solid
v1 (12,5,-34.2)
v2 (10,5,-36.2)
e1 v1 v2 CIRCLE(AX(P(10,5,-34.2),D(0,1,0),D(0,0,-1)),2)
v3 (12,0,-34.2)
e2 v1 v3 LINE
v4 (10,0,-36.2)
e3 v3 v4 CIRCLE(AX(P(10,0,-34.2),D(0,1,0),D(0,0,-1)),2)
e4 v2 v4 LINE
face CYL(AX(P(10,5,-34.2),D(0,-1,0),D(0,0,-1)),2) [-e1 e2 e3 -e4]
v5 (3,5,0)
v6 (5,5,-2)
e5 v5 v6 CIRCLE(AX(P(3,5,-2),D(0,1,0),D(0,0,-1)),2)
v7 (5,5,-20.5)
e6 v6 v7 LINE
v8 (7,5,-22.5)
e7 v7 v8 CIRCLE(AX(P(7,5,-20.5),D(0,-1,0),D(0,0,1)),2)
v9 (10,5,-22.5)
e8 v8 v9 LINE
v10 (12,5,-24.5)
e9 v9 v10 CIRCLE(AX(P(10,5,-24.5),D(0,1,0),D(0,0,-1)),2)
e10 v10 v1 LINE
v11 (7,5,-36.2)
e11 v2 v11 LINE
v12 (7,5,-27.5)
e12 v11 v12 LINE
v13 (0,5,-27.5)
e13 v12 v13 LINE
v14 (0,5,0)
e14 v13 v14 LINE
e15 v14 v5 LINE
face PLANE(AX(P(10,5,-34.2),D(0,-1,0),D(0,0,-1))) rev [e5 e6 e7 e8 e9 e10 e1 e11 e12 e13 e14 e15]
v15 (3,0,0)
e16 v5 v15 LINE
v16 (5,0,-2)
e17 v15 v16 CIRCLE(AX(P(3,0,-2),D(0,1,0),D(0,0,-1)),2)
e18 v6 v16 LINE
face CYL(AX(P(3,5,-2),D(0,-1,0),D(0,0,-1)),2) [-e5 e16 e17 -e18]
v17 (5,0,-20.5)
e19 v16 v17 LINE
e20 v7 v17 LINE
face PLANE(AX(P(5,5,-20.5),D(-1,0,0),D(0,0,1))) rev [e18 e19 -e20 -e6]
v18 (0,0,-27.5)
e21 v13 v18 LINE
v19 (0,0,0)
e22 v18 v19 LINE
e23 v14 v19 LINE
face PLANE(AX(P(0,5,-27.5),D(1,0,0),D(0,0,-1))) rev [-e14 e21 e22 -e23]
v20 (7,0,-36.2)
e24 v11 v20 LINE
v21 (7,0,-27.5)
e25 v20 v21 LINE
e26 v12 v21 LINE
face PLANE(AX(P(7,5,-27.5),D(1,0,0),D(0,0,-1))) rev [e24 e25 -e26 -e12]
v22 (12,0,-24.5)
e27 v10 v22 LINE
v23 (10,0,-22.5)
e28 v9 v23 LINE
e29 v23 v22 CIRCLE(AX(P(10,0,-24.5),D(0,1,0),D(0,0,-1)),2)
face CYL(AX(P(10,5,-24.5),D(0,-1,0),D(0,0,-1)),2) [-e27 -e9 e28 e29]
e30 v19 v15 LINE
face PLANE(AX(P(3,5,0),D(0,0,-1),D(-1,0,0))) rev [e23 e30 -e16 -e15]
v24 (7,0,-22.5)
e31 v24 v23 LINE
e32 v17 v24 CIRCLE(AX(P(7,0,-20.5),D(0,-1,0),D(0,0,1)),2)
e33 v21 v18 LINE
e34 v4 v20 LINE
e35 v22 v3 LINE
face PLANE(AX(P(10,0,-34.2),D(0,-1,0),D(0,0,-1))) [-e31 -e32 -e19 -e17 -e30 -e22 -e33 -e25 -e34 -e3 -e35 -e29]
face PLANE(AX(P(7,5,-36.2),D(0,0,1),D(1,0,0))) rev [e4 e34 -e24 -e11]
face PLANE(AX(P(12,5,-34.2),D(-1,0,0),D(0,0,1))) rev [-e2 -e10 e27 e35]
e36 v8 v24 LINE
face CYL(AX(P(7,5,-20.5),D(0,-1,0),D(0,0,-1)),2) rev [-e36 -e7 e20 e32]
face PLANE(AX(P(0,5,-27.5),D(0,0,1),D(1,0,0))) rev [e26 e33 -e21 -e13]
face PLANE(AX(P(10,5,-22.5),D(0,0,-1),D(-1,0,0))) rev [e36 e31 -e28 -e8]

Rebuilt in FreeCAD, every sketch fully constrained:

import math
import FreeCAD as App
import Part
import Sketcher

V = App.Vector
Q = App.Units.Quantity

doc = App.newDocument("Part")
params = doc.addObject("Spreadsheet::Sheet", "Params")
for row, (alias, value) in enumerate([
    ("sketch1_radius", "2 mm"),
    ("sketch1_width", "3 mm"),
    ("sketch1_height", "8.7 mm"),
    ("sketch1_height2", "27.5 mm"),
    ("sketch1_height3", "18.5 mm"),
    ("pad1_length", "5 mm"),
], start=1):
    params.set(f"A{row}", alias)
    params.set(f"B{row}", "=" + value)
    params.setAlias(f"B{row}", alias)

body = doc.addObject("PartDesign::Body", "Body")

# Sketch on XZ plane
sketch1 = doc.addObject("Sketcher::SketchObject", "Sketch")
body.addObject(sketch1)
sketch1.AttachmentSupport = (doc.XZ_Plane, [""])
sketch1.MapMode = "FlatFace"
sketch1.addGeometry(Part.LineSegment(V(10, -36.2, 0), V(7, -36.2, 0)), False)
sketch1.addGeometry(Part.LineSegment(V(7, -36.2, 0), V(7, -27.5, 0)), False)
sketch1.addGeometry(Part.LineSegment(V(7, -27.5, 0), V(0, -27.5, 0)), False)
sketch1.addGeometry(Part.LineSegment(V(0, -27.5, 0), V(0, 0, 0)), False)
sketch1.addGeometry(Part.LineSegment(V(0, 0, 0), V(3, 0, 0)), False)
sketch1.addGeometry(Part.ArcOfCircle(Part.Circle(V(3, -2, 0), V(0, 0, 1), 2), math.radians(0), math.radians(90)), False)
sketch1.addGeometry(Part.LineSegment(V(5, -2, 0), V(5, -20.5, 0)), False)
sketch1.addGeometry(Part.ArcOfCircle(Part.Circle(V(7, -20.5, 0), V(0, 0, 1), 2), math.radians(-180), math.radians(-90)), False)
sketch1.addGeometry(Part.LineSegment(V(7, -22.5, 0), V(10, -22.5, 0)), False)
sketch1.addGeometry(Part.ArcOfCircle(Part.Circle(V(10, -24.5, 0), V(0, 0, 1), 2), math.radians(0), math.radians(90)), False)
sketch1.addGeometry(Part.LineSegment(V(12, -24.5, 0), V(12, -34.2, 0)), False)
sketch1.addGeometry(Part.ArcOfCircle(Part.Circle(V(10, -34.2, 0), V(0, 0, 1), 2), math.radians(-90), math.radians(0)), False)
sketch1.addConstraint(Sketcher.Constraint("Coincident", 0, 2, 1, 1))
sketch1.addConstraint(Sketcher.Constraint("Coincident", 1, 2, 2, 1))
sketch1.addConstraint(Sketcher.Constraint("Coincident", 2, 2, 3, 1))
sketch1.addConstraint(Sketcher.Constraint("Coincident", 3, 2, 4, 1))
sketch1.addConstraint(Sketcher.Constraint("Tangent", 4, 2, 5, 2))
sketch1.addConstraint(Sketcher.Constraint("Tangent", 5, 1, 6, 1))
sketch1.addConstraint(Sketcher.Constraint("Tangent", 6, 2, 7, 1))
sketch1.addConstraint(Sketcher.Constraint("Tangent", 7, 2, 8, 1))
sketch1.addConstraint(Sketcher.Constraint("Tangent", 8, 2, 9, 2))
sketch1.addConstraint(Sketcher.Constraint("Tangent", 9, 1, 10, 1))
sketch1.addConstraint(Sketcher.Constraint("Tangent", 10, 2, 11, 2))
sketch1.addConstraint(Sketcher.Constraint("Tangent", 11, 1, 0, 1))
sketch1.addConstraint(Sketcher.Constraint("Horizontal", 0))
sketch1.addConstraint(Sketcher.Constraint("Vertical", 1))
sketch1.addConstraint(Sketcher.Constraint("Horizontal", 2))
sketch1.addConstraint(Sketcher.Constraint("Vertical", 3))
sketch1.addConstraint(Sketcher.Constraint("Horizontal", 4))
sketch1.addConstraint(Sketcher.Constraint("Vertical", 6))
sketch1.addConstraint(Sketcher.Constraint("Horizontal", 8))
sketch1.addConstraint(Sketcher.Constraint("Vertical", 10))
sketch1.addConstraint(Sketcher.Constraint("Coincident", 3, 2, -1, 1))
sketch1.addConstraint(Sketcher.Constraint("Equal", 5, 7))
sketch1.addConstraint(Sketcher.Constraint("Equal", 7, 9))
sketch1.addConstraint(Sketcher.Constraint("Equal", 9, 11))
sketch1.addConstraint(Sketcher.Constraint("Vertical", 7, 3, 0, 2))
sketch1.addConstraint(Sketcher.Constraint("Equal", 0, 4))
sketch1.addConstraint(Sketcher.Constraint("Radius", 5, Q("2 mm")))
sketch1.addConstraint(Sketcher.Constraint("DistanceX", 0, 2, 0, 1, Q("3 mm")))
sketch1.addConstraint(Sketcher.Constraint("DistanceY", 1, 1, 1, 2, Q("8.7 mm")))
sketch1.addConstraint(Sketcher.Constraint("DistanceY", 3, 1, 3, 2, Q("27.5 mm")))
sketch1.addConstraint(Sketcher.Constraint("DistanceY", 6, 2, 6, 1, Q("18.5 mm")))
sketch1.setExpression("Constraints[26]", "Params.sketch1_radius")
sketch1.setExpression("Constraints[27]", "Params.sketch1_width")
sketch1.setExpression("Constraints[28]", "Params.sketch1_height")
sketch1.setExpression("Constraints[29]", "Params.sketch1_height2")
sketch1.setExpression("Constraints[30]", "Params.sketch1_height3")
pad1 = doc.addObject("PartDesign::Pad", "Pad")
body.addObject(pad1)
pad1.Profile = sketch1
pad1.setExpression("Length", "Params.pad1_length")
pad1.Reversed = True

doc.recompute()
